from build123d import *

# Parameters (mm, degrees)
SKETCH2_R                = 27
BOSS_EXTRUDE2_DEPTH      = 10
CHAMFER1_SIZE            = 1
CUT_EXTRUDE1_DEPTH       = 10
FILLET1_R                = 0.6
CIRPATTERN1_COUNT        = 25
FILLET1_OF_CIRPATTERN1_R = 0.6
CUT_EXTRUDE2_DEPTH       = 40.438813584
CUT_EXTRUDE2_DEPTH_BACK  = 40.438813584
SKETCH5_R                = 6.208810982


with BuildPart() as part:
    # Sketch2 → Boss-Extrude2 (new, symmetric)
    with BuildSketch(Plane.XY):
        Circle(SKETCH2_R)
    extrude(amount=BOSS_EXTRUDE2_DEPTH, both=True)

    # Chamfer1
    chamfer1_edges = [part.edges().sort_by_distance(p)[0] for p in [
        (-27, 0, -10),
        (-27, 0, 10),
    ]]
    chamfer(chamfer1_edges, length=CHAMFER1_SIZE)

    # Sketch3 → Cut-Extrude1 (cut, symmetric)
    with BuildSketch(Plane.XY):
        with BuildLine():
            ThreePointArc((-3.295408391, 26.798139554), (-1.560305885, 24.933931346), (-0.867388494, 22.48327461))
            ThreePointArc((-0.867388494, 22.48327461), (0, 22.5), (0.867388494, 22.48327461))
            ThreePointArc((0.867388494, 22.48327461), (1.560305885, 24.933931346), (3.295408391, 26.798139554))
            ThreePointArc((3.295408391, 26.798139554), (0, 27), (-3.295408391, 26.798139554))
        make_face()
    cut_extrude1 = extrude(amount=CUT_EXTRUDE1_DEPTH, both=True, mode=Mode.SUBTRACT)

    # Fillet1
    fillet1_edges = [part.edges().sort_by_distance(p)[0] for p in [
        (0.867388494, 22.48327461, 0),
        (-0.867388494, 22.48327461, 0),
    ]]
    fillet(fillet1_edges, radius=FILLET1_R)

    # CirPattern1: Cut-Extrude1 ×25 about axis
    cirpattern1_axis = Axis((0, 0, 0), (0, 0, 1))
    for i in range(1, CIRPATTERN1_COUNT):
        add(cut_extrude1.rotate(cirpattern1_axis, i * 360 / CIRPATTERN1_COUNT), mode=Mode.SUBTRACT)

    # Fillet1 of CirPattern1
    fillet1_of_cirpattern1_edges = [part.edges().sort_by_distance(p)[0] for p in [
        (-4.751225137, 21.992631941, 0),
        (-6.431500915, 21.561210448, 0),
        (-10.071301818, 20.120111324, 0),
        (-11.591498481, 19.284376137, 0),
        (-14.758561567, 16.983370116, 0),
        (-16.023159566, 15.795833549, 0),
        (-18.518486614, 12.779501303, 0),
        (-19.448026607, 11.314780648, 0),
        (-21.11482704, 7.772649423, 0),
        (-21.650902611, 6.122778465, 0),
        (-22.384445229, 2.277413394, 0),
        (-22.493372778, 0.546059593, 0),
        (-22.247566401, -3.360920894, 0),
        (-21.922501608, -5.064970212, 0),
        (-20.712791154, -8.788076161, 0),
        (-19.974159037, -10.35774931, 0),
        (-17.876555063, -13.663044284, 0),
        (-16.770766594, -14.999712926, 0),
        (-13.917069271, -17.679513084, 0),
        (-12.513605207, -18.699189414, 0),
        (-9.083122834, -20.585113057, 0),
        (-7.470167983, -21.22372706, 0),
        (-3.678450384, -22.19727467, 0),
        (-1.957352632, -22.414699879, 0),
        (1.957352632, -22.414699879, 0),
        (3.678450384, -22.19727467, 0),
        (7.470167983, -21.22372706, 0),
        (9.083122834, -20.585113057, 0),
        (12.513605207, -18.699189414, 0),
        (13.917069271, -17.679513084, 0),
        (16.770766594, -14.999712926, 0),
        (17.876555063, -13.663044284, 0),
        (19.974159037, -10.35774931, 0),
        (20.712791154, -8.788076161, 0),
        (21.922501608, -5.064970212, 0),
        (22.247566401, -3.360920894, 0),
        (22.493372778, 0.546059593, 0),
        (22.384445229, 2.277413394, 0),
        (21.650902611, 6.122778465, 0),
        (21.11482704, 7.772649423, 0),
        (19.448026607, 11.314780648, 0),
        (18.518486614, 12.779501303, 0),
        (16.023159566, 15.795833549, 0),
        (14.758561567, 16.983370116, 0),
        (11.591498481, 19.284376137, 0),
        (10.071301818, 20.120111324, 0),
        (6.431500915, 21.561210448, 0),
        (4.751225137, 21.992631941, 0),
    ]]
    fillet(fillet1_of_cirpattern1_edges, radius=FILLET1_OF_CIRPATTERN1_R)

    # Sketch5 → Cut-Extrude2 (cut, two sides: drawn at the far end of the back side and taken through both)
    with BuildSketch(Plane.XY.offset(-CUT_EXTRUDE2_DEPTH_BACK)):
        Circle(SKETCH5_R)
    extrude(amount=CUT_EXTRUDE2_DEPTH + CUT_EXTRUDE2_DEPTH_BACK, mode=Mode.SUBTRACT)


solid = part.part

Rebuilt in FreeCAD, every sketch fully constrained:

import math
import FreeCAD as App
import Part
import Sketcher
from FreeCAD import Vector


def edges_at(feature, points):
    """Names of the edges that pass closest to the given points."""
    edges = feature.Shape.Edges
    near = lambda p: min(range(len(edges)), key=lambda i: edges[i].distToShape(Part.Vertex(*p))[0])
    return sorted({f"Edge{near(p) + 1}" for p in points})

doc = App.newDocument("Part")
params = doc.addObject("Spreadsheet::Sheet", "Params")
for row, (alias, value) in enumerate([
    ("sketch1_diameter", "54 mm"),
    ("pad1_length", "20 mm"),
    ("chamfer_size", "1 mm"),
    ("sketch2_radius", "27 mm"),
    ("sketch2_radius2", "22.5 mm"),
    ("pocket1_length", "20 mm"),
    ("fillet_radius", "0.6 mm"),
    ("fillet2_radius", "0.6 mm"),
], start=1):
    params.set(f"A{row}", alias)
    params.set(f"B{row}", "=" + value)
    params.setAlias(f"B{row}", alias)

body = doc.addObject("PartDesign::Body", "Body")

# Sketch on XY plane
sketch1 = body.newObject("Sketcher::SketchObject", "Sketch")
sketch1.AttachmentSupport = (doc.getObject("XY_Plane"), [""])
sketch1.MapMode = "FlatFace"
sketch1.addGeometry(Part.Circle(Vector(0, 0, 0), Vector(0, 0, 1), 27), False)
sketch1.addConstraint([
    Sketcher.Constraint("Coincident", 0, 3, -1, 1),
    Sketcher.Constraint("Diameter", 0, 54.0),
])
sketch1.setExpression("Constraints[1]", "Params.sketch1_diameter")
pad1 = body.newObject("PartDesign::Pad", "Pad")
pad1.Profile = sketch1
pad1.setExpression("Length", "Params.pad1_length")
pad1.Midplane = True
doc.recompute()

chamfer = body.newObject("PartDesign::Chamfer", "Chamfer")
chamfer.Base = (pad1, edges_at(pad1, [(-27, 0, -10), (-27, 0, 10)]))
chamfer.setExpression("Size", "Params.chamfer_size")

# Sketch on XY plane
sketch2 = body.newObject("Sketcher::SketchObject", "Sketch001")
sketch2.AttachmentSupport = (doc.getObject("XY_Plane"), [""])
sketch2.MapMode = "FlatFace"
sketch2.addGeometry([
    Part.ArcOfCircle(Part.Circle(Vector(-6.3, 22.3, 0), Vector(0, 0, 1), 5.4), math.radians(2), math.radians(57)),
    Part.ArcOfCircle(Part.Circle(Vector(0, 0, 0), Vector(0, 0, 1), 22.5), math.radians(87.79), math.radians(92.21)),
    Part.ArcOfCircle(Part.Circle(Vector(6.3, 22.3, 0), Vector(0, 0, 1), 5.4), math.radians(123), math.radians(178)),
    Part.ArcOfCircle(Part.Circle(Vector(0, 0, 0), Vector(0, 0, 1), 27), math.radians(82.99), math.radians(97.01)),
], False)
sketch2.addConstraint([
    Sketcher.Constraint("Coincident", 0, 1, 1, 2),
    Sketcher.Constraint("Coincident", 1, 1, 2, 2),
    Sketcher.Constraint("Coincident", 2, 1, 3, 1),
    Sketcher.Constraint("Coincident", 3, 2, 0, 2),
    Sketcher.Constraint("Coincident", 1, 3, -1, 1),
    Sketcher.Constraint("Coincident", 3, 3, -1, 1),
    Sketcher.Constraint("Equal", 0, 2),
    Sketcher.Constraint("Symmetric", 0, 3, 2, 3, -2),
    Sketcher.Constraint("Radius", 3, 27.0),
    Sketcher.Constraint("Radius", 1, 22.5),
    Sketcher.Constraint("Radius", 0, 5.423607),
    Sketcher.Constraint("DistanceY", -1, 1, 0, 3, 22.274191),
    Sketcher.Constraint("DistanceX", 0, 1, -1, 1, 0.867388),
])
sketch2.setExpression("Constraints[8]", "Params.sketch2_radius")
sketch2.setExpression("Constraints[9]", "Params.sketch2_radius2")
pocket1 = body.newObject("PartDesign::Pocket", "Pocket")
pocket1.Profile = sketch2
pocket1.setExpression("Length", "Params.pocket1_length")
pocket1.Midplane = True
doc.recompute()

fillet = body.newObject("PartDesign::Fillet", "Fillet")
fillet.Base = (pocket1, edges_at(pocket1, [(0.867, 22.483, 0), (-0.867, 22.483, 0)]))
fillet.setExpression("Radius", "Params.fillet_radius")
doc.recompute()

polarpattern = body.newObject("PartDesign::PolarPattern", "PolarPattern")
polarpattern.Originals = [pocket1]
polarpattern.Axis = (doc.getObject("Z_Axis"), [""])
polarpattern.Angle = 360
polarpattern.Occurrences = 25
body.Tip = polarpattern
doc.recompute()

fillet2 = body.newObject("PartDesign::Fillet", "Fillet001")
fillet2.Base = (polarpattern, edges_at(polarpattern, [
    (-4.751, 21.993, 0),
    (-6.432, 21.561, 0),
    (-10.071, 20.12, 0),
    (-11.591, 19.284, 0),
    (-14.759, 16.983, 0),
    (-16.023, 15.796, 0),
    (-18.518, 12.78, 0),
    (-19.448, 11.315, 0),
    (-21.115, 7.773, 0),
    (-21.651, 6.123, 0),
    (-22.384, 2.277, 0),
    (-22.493, 0.546, 0),
    (-22.248, -3.361, 0),
    (-21.923, -5.065, 0),
    (-20.713, -8.788, 0),
    (-19.974, -10.358, 0),
    (-17.877, -13.663, 0),
    (-16.771, -15, 0),
    (-13.917, -17.68, 0),
    (-12.514, -18.699, 0),
    (-9.083, -20.585, 0),
    (-7.47, -21.224, 0),
    (-3.678, -22.197, 0),
    (-1.957, -22.415, 0),
    (1.957, -22.415, 0),
    (3.678, -22.197, 0),
    (7.47, -21.224, 0),
    (9.083, -20.585, 0),
    (12.514, -18.699, 0),
    (13.917, -17.68, 0),
    (16.771, -15, 0),
    (17.877, -13.663, 0),
    (19.974, -10.358, 0),
    (20.713, -8.788, 0),
    (21.923, -5.065, 0),
    (22.248, -3.361, 0),
    (22.493, 0.546, 0),
    (22.384, 2.277, 0),
    (21.651, 6.123, 0),
    (21.115, 7.773, 0),
    (19.448, 11.315, 0),
    (18.518, 12.78, 0),
    (16.023, 15.796, 0),
    (14.759, 16.983, 0),
    (11.591, 19.284, 0),
    (10.071, 20.12, 0),
    (6.432, 21.561, 0),
    (4.751, 21.993, 0),
]))
fillet2.setExpression("Radius", "Params.fillet2_radius")

# Sketch on XY plane
sketch3 = body.newObject("Sketcher::SketchObject", "Sketch002")
sketch3.AttachmentSupport = (doc.getObject("XY_Plane"), [""])
sketch3.MapMode = "FlatFace"
sketch3.addGeometry(Part.Circle(Vector(0, 0, 0), Vector(0, 0, 1), 6), False)
sketch3.addConstraint([
    Sketcher.Constraint("Coincident", 0, 3, -1, 1),
    Sketcher.Constraint("Diameter", 0, 12.417622),
])
pocket2 = body.newObject("PartDesign::Pocket", "Pocket001")
pocket2.Profile = sketch3
pocket2.Type = "ThroughAll"
pocket2.Midplane = True

doc.recompute()
